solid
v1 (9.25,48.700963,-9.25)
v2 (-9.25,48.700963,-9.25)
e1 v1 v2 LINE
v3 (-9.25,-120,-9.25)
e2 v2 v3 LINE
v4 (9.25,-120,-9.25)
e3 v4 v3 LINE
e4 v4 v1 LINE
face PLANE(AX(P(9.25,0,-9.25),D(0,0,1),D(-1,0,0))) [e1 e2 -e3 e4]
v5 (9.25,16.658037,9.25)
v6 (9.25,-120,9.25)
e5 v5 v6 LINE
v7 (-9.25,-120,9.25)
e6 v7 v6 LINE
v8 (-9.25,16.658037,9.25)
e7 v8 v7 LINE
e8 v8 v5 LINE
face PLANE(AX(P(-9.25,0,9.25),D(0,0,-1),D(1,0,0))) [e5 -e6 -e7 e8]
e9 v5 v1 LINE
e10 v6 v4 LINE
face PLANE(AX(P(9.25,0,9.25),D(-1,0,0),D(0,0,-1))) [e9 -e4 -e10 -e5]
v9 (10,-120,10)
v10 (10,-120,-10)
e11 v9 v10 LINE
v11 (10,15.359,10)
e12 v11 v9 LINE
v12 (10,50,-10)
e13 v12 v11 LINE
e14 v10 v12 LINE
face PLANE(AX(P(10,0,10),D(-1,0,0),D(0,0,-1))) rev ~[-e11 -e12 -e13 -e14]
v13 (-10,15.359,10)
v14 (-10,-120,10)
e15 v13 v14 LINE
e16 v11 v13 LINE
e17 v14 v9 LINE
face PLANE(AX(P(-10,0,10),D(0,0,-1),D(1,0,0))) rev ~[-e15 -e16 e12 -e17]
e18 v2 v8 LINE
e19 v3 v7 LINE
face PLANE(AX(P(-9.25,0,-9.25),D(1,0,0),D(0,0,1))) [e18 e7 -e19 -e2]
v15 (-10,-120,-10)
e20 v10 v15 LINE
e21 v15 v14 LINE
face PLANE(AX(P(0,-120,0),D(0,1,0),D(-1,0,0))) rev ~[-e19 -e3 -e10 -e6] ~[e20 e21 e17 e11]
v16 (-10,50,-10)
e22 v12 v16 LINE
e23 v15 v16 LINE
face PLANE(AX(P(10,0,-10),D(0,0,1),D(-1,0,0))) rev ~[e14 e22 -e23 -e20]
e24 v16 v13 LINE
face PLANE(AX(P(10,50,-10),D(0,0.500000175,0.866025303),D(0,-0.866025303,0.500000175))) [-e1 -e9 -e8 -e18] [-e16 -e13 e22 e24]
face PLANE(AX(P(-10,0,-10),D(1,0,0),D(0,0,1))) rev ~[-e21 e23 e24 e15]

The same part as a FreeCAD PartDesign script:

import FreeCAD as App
import Part
import Sketcher
from FreeCAD import Vector
Q = App.Units.Quantity


def add_polygon(sketch, points):
    """Adds a closed chain of lines whose ends are joined by coincident constraints."""
    first, n = sketch.GeometryCount, len(points)
    for a, b in zip(points, points[1:] + points[:1]):
        sketch.addGeometry(Part.LineSegment(App.Vector(*a, 0), App.Vector(*b, 0)), False)
    for i in range(n):
        sketch.addConstraint(Sketcher.Constraint("Coincident", first + i, 2, first + (i + 1) % n, 1))

doc = App.newDocument("Part")
params = doc.addObject("Spreadsheet::Sheet", "Params")
for row, (alias, value) in enumerate([
    ("sketch1_width", "20 mm"),
    ("sketch1_width2", "18.5 mm"),
    ("pad1_length", "50 mm"),
    ("pad1_length2", "120 mm"),
    ("sketch2_height", "20 mm"),
    ("pocket1_length", "50 mm"),
], start=1):
    params.set(f"A{row}", alias)
    params.set(f"B{row}", "=" + value)
    params.setAlias(f"B{row}", alias)

body = doc.addObject("PartDesign::Body", "Body")

# Sketch on XZ plane
sketch1 = body.newObject("Sketcher::SketchObject", "Sketch")
sketch1.AttachmentSupport = (doc.getObject("XZ_Plane"), [""])
sketch1.MapMode = "FlatFace"
add_polygon(sketch1, [(10, 10), (10, -10), (-10, -10), (-10, 10)])  # lines 0-3
add_polygon(sketch1, [(-9, -9), (9, -9), (9, 9), (-9, 9)])  # lines 4-7
sketch1.addConstraint(Sketcher.Constraint("Vertical", 0))
sketch1.addConstraint(Sketcher.Constraint("Horizontal", 1))
sketch1.addConstraint(Sketcher.Constraint("Vertical", 2))
sketch1.addConstraint(Sketcher.Constraint("Horizontal", 3))
sketch1.addConstraint(Sketcher.Constraint("Horizontal", 4))
sketch1.addConstraint(Sketcher.Constraint("Vertical", 5))
sketch1.addConstraint(Sketcher.Constraint("Horizontal", 6))
sketch1.addConstraint(Sketcher.Constraint("Vertical", 7))
sketch1.addConstraint(Sketcher.Constraint("Symmetric", 0, 2, 2, 2, -1, 1))
sketch1.addConstraint(Sketcher.Constraint("Symmetric", 4, 2, 6, 2, -1, 1))
sketch1.addConstraint(Sketcher.Constraint("Equal", 3, 0))
sketch1.addConstraint(Sketcher.Constraint("Equal", 6, 5))
sketch1.addConstraint(Sketcher.Constraint("DistanceX", 1, 2, 1, 1, 20.0))
sketch1.addConstraint(Sketcher.Constraint("DistanceX", 4, 1, 4, 2, 18.5))
sketch1.setExpression("Constraints[20]", "Params.sketch1_width")
sketch1.setExpression("Constraints[21]", "Params.sketch1_width2")
pad1 = body.newObject("PartDesign::Pad", "Pad")
pad1.Profile = sketch1
pad1.Type = "TwoLengths"
pad1.setExpression("Length", "Params.pad1_length")
pad1.setExpression("Length2", "Params.pad1_length2")
pad1.Reversed = True

# Sketch on YZ plane
sketch2 = body.newObject("Sketcher::SketchObject", "Sketch001")
sketch2.AttachmentSupport = (doc.getObject("YZ_Plane"), [""])
sketch2.MapMode = "FlatFace"
sketch2.AttachmentOffset = App.Placement(Vector(0, 0, 10), App.Rotation())
add_polygon(sketch2, [(15, 10), (50, -10), (50, 10)])  # lines 0-2
sketch2.addConstraint(Sketcher.Constraint("Vertical", 1))
sketch2.addConstraint(Sketcher.Constraint("Horizontal", 2))
sketch2.addConstraint(Sketcher.Constraint("DistanceY", 1, 1, 1, 2, 20.0))
sketch2.addConstraint(Sketcher.Constraint("Angle", 0, Q("-30 deg")))
sketch2.addConstraint(Sketcher.Constraint("DistanceX", -1, 1, 0, 2, 50.0))
sketch2.addConstraint(Sketcher.Constraint("DistanceY", 0, 2, -1, 1, 10.0))
sketch2.setExpression("Constraints[5]", "Params.sketch2_height")
pocket1 = body.newObject("PartDesign::Pocket", "Pocket")
pocket1.Profile = sketch2
pocket1.setExpression("Length", "Params.pocket1_length")

doc.recompute()
